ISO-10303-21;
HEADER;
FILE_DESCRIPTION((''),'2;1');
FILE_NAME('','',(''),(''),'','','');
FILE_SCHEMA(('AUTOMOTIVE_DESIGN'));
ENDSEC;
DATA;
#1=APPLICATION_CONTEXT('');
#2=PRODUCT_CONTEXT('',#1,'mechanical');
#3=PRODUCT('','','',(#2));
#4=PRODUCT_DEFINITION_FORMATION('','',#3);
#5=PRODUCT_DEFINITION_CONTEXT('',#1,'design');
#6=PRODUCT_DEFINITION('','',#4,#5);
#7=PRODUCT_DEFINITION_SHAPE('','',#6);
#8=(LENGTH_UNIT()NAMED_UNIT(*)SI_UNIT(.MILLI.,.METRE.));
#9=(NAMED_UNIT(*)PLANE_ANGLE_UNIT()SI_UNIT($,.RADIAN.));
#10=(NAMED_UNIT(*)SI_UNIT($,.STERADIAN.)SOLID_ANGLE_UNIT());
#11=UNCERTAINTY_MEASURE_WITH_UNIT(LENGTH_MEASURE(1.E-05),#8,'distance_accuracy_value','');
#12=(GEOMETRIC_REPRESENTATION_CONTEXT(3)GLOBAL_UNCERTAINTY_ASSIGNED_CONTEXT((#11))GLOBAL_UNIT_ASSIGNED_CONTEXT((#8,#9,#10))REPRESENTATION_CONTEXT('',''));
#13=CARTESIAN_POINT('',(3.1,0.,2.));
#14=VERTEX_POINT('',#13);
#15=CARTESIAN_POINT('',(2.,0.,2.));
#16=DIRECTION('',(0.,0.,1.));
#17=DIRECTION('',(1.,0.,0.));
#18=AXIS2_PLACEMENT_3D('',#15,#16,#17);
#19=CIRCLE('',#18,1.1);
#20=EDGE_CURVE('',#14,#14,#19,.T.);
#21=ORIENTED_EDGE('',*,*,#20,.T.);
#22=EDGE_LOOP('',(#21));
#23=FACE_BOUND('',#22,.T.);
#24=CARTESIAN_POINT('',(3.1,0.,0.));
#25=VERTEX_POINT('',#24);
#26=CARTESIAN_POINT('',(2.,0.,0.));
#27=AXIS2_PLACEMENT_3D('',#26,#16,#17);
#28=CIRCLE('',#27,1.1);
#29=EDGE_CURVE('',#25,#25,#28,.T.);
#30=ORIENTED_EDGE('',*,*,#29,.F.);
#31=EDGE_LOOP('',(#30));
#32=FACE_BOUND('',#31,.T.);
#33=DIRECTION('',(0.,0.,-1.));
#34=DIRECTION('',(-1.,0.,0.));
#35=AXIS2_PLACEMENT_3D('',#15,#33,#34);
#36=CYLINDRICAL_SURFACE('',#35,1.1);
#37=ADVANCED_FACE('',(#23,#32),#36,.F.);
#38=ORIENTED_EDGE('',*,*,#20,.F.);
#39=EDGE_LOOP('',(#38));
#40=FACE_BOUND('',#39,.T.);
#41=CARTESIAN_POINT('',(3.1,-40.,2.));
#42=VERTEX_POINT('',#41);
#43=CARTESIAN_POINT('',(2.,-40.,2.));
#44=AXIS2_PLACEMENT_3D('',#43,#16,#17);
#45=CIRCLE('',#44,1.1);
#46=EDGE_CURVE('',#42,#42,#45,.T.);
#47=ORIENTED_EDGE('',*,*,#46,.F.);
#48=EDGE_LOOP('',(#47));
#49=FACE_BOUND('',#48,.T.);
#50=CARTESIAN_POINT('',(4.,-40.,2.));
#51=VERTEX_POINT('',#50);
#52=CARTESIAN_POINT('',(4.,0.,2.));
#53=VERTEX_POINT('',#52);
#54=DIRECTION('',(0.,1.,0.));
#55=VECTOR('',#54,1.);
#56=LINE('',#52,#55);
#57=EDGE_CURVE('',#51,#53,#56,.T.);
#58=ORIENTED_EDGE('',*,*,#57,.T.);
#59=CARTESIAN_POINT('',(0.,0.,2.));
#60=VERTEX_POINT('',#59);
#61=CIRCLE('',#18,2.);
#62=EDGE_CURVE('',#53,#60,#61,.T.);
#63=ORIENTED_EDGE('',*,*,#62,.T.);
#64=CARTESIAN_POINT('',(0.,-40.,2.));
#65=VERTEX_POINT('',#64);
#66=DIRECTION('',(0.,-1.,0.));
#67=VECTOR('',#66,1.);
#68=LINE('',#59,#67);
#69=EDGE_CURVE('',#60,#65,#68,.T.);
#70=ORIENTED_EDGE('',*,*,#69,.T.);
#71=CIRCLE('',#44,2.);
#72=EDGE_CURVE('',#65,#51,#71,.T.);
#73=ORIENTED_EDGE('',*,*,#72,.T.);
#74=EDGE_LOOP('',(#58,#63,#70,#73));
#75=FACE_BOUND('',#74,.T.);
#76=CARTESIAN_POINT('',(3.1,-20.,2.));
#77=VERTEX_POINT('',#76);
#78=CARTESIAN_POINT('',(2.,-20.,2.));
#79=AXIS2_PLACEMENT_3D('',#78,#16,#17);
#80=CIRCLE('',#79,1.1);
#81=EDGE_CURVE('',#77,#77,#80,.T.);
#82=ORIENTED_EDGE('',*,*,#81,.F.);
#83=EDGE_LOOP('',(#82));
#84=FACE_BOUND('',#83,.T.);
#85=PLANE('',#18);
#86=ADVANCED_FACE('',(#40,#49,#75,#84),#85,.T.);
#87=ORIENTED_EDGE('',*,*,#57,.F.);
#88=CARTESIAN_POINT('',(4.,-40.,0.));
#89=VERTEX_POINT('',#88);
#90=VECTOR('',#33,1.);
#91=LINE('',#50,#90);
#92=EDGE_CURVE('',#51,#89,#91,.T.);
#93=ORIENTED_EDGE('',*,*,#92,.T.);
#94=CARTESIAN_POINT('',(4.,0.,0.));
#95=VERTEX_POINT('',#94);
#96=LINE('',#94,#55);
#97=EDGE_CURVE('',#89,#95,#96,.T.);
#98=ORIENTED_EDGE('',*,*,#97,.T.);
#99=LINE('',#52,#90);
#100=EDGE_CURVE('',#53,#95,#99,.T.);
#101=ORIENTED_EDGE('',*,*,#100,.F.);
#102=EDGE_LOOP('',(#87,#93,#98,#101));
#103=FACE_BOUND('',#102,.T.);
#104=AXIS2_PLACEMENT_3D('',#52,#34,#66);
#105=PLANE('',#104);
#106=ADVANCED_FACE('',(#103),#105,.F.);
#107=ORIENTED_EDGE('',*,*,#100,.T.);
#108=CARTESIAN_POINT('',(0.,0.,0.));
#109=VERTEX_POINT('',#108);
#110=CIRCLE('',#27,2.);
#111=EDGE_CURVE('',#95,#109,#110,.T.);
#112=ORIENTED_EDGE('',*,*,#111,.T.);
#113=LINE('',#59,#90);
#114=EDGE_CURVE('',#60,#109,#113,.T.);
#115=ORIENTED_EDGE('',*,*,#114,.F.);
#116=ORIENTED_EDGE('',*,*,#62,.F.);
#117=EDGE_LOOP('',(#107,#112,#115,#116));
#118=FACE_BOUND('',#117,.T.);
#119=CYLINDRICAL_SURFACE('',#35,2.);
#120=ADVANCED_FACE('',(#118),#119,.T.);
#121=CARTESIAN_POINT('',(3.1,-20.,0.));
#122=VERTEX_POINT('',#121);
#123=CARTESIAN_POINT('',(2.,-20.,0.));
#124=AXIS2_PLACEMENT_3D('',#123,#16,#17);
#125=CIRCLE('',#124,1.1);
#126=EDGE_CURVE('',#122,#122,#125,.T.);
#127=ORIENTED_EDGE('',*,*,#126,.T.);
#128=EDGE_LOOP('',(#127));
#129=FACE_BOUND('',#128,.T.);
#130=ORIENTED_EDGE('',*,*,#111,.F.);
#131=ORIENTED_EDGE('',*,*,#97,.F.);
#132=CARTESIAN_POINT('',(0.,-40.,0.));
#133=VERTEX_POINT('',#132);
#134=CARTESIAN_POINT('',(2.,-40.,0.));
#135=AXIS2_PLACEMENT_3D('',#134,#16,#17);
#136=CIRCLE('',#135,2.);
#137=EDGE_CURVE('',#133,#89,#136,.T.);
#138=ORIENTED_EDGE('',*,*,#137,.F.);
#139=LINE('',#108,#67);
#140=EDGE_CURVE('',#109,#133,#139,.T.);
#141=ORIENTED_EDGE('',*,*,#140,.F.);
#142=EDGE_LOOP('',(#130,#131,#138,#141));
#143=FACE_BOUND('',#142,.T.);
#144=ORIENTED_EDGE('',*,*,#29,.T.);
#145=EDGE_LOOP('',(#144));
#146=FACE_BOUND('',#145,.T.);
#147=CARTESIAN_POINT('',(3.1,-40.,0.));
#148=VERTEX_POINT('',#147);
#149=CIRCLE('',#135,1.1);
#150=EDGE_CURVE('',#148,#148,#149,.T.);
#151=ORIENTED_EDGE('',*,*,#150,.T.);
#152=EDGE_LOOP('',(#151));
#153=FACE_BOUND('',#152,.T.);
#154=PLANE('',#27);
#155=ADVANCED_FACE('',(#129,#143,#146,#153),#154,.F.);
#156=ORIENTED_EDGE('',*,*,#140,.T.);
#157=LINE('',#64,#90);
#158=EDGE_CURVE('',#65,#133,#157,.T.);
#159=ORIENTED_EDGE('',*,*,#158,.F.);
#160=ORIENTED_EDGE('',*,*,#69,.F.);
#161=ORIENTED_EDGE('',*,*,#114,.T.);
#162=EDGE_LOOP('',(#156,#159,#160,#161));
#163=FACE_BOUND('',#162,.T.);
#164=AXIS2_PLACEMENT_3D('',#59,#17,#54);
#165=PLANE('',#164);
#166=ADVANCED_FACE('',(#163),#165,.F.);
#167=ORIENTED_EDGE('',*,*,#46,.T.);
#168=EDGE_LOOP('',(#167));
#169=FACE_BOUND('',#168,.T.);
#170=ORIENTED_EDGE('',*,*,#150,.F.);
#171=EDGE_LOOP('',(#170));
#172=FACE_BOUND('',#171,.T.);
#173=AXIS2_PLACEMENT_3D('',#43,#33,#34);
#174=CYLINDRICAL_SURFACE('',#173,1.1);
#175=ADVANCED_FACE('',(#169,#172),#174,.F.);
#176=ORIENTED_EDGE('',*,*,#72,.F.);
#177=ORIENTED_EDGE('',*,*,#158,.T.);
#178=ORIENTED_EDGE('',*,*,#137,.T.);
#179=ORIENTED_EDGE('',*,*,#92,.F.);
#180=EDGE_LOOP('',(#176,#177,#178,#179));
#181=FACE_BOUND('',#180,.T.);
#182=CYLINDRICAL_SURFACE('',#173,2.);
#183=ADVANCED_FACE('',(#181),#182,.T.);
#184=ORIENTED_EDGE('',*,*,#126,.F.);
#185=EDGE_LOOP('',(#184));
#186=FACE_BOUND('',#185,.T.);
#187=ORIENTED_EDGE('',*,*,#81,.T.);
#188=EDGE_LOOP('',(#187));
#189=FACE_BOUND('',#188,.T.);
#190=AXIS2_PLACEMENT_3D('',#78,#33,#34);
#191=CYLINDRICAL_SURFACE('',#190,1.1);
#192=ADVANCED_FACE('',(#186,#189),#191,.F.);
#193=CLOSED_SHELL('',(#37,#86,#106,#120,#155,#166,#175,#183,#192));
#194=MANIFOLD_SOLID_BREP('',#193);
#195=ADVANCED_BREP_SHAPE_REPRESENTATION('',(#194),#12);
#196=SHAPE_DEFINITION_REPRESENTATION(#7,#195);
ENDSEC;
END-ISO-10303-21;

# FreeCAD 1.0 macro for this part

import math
import FreeCAD as App
import Part
import Sketcher

V = App.Vector

doc = App.newDocument("Part")
body = doc.addObject("PartDesign::Body", "Body")

sketch1 = body.newObject("Sketcher::SketchObject", "Sketch")
sketch1.AttachmentSupport = (doc.getObject("XY_Plane"), [""])
sketch1.MapMode = "FlatFace"
sketch1.addGeometry([
    Part.LineSegment(V(0, 0, 0), V(0, -40, 0)),
    Part.ArcOfCircle(Part.Circle(V(2, -40, 0), V(0, 0, 1), 2), math.radians(180), math.radians(360)),
    Part.LineSegment(V(4, -40, 0), V(4, 0, 0)),
    Part.ArcOfCircle(Part.Circle(V(2, 0, 0), V(0, 0, 1), 2), math.radians(0), math.radians(180)),
    Part.Circle(V(2, -40, 0), V(0, 0, 1), 1.1),
    Part.Circle(V(2, -20, 0), V(0, 0, 1), 1.1),
    Part.Circle(V(2, 0, 0), V(0, 0, 1), 1.1),
], False)
sketch1.addConstraint([
    Sketcher.Constraint("Tangent", 0, 2, 1, 1),
    Sketcher.Constraint("Tangent", 1, 2, 2, 1),
    Sketcher.Constraint("Tangent", 2, 2, 3, 1),
    Sketcher.Constraint("Tangent", 3, 2, 0, 1),
    Sketcher.Constraint("Vertical", 0),
    Sketcher.Constraint("Vertical", 2),
    Sketcher.Constraint("Coincident", 3, 2, -1, 1),
    Sketcher.Constraint("Coincident", 4, 3, 1, 3),
    Sketcher.Constraint("Coincident", 6, 3, 3, 3),
    Sketcher.Constraint("Equal", 4, 5),
    Sketcher.Constraint("Equal", 5, 6),
    Sketcher.Constraint("Vertical", 4, 3, 5, 3),
    Sketcher.Constraint("Radius", 1, 2.0),
    Sketcher.Constraint("Diameter", 4, 2.2),
    Sketcher.Constraint("DistanceY", 0, 2, 0, 1, 40.0),
    Sketcher.Constraint("DistanceY", 5, 3, -1, 1, 20.0),
])
pad1 = body.newObject("PartDesign::Pad", "Pad")
pad1.Profile = sketch1
pad1.Length = 2

doc.recompute()
